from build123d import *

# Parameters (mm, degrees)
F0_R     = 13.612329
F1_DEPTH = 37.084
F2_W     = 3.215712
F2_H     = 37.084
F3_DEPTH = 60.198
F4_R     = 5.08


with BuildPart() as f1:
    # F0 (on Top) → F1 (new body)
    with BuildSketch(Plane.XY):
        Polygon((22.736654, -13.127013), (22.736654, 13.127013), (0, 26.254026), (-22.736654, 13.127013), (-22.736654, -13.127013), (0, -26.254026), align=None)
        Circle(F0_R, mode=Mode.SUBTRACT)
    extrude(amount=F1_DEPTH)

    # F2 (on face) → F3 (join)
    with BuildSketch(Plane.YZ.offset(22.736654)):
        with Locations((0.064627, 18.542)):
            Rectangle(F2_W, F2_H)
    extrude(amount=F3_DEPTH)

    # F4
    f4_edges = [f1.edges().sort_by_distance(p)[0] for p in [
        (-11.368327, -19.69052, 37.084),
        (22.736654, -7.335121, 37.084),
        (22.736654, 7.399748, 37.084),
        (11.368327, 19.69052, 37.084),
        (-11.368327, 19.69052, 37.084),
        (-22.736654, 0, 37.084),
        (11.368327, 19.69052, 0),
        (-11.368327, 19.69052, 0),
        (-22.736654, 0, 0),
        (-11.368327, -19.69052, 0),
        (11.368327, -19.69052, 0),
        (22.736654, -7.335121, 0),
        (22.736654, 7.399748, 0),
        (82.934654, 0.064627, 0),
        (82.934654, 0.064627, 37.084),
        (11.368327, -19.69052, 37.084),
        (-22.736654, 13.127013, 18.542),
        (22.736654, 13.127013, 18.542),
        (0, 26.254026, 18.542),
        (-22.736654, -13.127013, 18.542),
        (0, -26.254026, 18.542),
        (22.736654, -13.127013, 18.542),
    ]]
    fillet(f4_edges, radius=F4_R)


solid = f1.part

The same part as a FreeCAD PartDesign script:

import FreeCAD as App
import Part
import Sketcher

V = App.Vector
Q = App.Units.Quantity


def edges_at(feature, points):
    """Names of the edges that pass closest to the given points."""
    edges = feature.Shape.Edges
    near = lambda p: min(range(len(edges)), key=lambda i: edges[i].distToShape(Part.Vertex(*p))[0])
    return sorted({f"Edge{near(p) + 1}" for p in points})

doc = App.newDocument("Part")
body = doc.addObject("PartDesign::Body", "Body")

# Sketch on XY plane
sketch1 = body.newObject("Sketcher::SketchObject", "Sketch")
sketch1.AttachmentSupport = (doc.getObject("XY_Plane"), [""])
sketch1.MapMode = "FlatFace"
sketch1.addGeometry(Part.LineSegment(V(23, -13, 0), V(23, 13, 0)), False)
sketch1.addGeometry(Part.LineSegment(V(23, 13, 0), V(0, 26, 0)), False)
sketch1.addGeometry(Part.LineSegment(V(0, 26, 0), V(-23, 13, 0)), False)
sketch1.addGeometry(Part.LineSegment(V(-23, 13, 0), V(-23, -13, 0)), False)
sketch1.addGeometry(Part.LineSegment(V(-23, -13, 0), V(0, -26, 0)), False)
sketch1.addGeometry(Part.LineSegment(V(0, -26, 0), V(23, -13, 0)), False)
sketch1.addGeometry(Part.Circle(V(0, 0, 0), V(0, 0, 1), 14), False)
sketch1.addConstraint(Sketcher.Constraint("Coincident", 0, 2, 1, 1))
sketch1.addConstraint(Sketcher.Constraint("Coincident", 1, 2, 2, 1))
sketch1.addConstraint(Sketcher.Constraint("Coincident", 2, 2, 3, 1))
sketch1.addConstraint(Sketcher.Constraint("Coincident", 3, 2, 4, 1))
sketch1.addConstraint(Sketcher.Constraint("Coincident", 4, 2, 5, 1))
sketch1.addConstraint(Sketcher.Constraint("Coincident", 5, 2, 0, 1))
sketch1.addConstraint(Sketcher.Constraint("Vertical", 0))
sketch1.addConstraint(Sketcher.Constraint("Vertical", 3))
sketch1.addConstraint(Sketcher.Constraint("Coincident", 6, 3, -1, 1))
sketch1.addConstraint(Sketcher.Constraint("Symmetric", 0, 2, 3, 2, -1, 1))
sketch1.addConstraint(Sketcher.Constraint("Symmetric", 1, 2, 4, 2, -1, 1))
sketch1.addConstraint(Sketcher.Constraint("PointOnObject", 1, 2, -2))
sketch1.addConstraint(Sketcher.Constraint("Parallel", 2, 5))
sketch1.addConstraint(Sketcher.Constraint("Horizontal", 0, 2, 2, 2))
sketch1.addConstraint(Sketcher.Constraint("Angle", 1, Q("150.000001 deg")))
sketch1.addConstraint(Sketcher.Constraint("Diameter", 6, Q("27.224658 mm")))
sketch1.addConstraint(Sketcher.Constraint("DistanceY", 0, 1, 0, 2, Q("26.254026 mm")))
sketch1.addConstraint(Sketcher.Constraint("DistanceX", 2, 2, 0, 2, Q("45.473308 mm")))
pad1 = body.newObject("PartDesign::Pad", "Pad")
pad1.Profile = sketch1
pad1.Length = Q("1.46 in")

# Sketch on YZ plane
sketch2 = body.newObject("Sketcher::SketchObject", "Sketch001")
sketch2.AttachmentSupport = (doc.getObject("YZ_Plane"), [""])
sketch2.MapMode = "FlatFace"
sketch2.AttachmentOffset = App.Placement(V(0, 0, 22.736654), App.Rotation())
sketch2.addGeometry(Part.LineSegment(V(-1.5, 37.1, 0), V(-1.5, 0, 0)), False)
sketch2.addGeometry(Part.LineSegment(V(-1.5, 0, 0), V(1.7, 0, 0)), False)
sketch2.addGeometry(Part.LineSegment(V(1.7, 0, 0), V(1.7, 37.1, 0)), False)
sketch2.addGeometry(Part.LineSegment(V(1.7, 37.1, 0), V(-1.5, 37.1, 0)), False)
sketch2.addConstraint(Sketcher.Constraint("Coincident", 0, 2, 1, 1))
sketch2.addConstraint(Sketcher.Constraint("Coincident", 1, 2, 2, 1))
sketch2.addConstraint(Sketcher.Constraint("Coincident", 2, 2, 3, 1))
sketch2.addConstraint(Sketcher.Constraint("Coincident", 3, 2, 0, 1))
sketch2.addConstraint(Sketcher.Constraint("Vertical", 0))
sketch2.addConstraint(Sketcher.Constraint("Horizontal", 1))
sketch2.addConstraint(Sketcher.Constraint("Vertical", 2))
sketch2.addConstraint(Sketcher.Constraint("Horizontal", 3))
sketch2.addConstraint(Sketcher.Constraint("PointOnObject", 0, 2, -1))
sketch2.addConstraint(Sketcher.Constraint("DistanceY", 0, 2, 0, 1, Q("1.46 in")))
sketch2.addConstraint(Sketcher.Constraint("DistanceX", 1, 1, 1, 2, Q("3.215712 mm")))
sketch2.addConstraint(Sketcher.Constraint("DistanceX", 0, 2, -1, 1, Q("1.543229 mm")))
pad2 = body.newObject("PartDesign::Pad", "Pad001")
pad2.Profile = sketch2
pad2.Length = Q("2.37 in")
doc.recompute()

fillet = body.newObject("PartDesign::Fillet", "Fillet")
fillet.Base = (pad2, edges_at(pad2, [
    (-11.368, -19.691, 37.084),
    (22.737, -7.335, 37.084),
    (22.737, 7.4, 37.084),
    (11.368, 19.691, 37.084),
    (-11.368, 19.691, 37.084),
    (-22.737, 0, 37.084),
    (11.368, 19.691, 0),
    (-11.368, 19.691, 0),
    (-22.737, 0, 0),
    (-11.368, -19.691, 0),
    (11.368, -19.691, 0),
    (22.737, -7.335, 0),
    (22.737, 7.4, 0),
    (82.935, 0.065, 0),
    (82.935, 0.065, 37.084),
    (11.368, -19.691, 37.084),
    (-22.737, 13.127, 18.542),
    (22.737, 13.127, 18.542),
    (0, 26.254, 18.542),
    (-22.737, -13.127, 18.542),
    (0, -26.254, 18.542),
    (22.737, -13.127, 18.542),
]))
fillet.Radius = Q("0.2 in")

doc.recompute()
